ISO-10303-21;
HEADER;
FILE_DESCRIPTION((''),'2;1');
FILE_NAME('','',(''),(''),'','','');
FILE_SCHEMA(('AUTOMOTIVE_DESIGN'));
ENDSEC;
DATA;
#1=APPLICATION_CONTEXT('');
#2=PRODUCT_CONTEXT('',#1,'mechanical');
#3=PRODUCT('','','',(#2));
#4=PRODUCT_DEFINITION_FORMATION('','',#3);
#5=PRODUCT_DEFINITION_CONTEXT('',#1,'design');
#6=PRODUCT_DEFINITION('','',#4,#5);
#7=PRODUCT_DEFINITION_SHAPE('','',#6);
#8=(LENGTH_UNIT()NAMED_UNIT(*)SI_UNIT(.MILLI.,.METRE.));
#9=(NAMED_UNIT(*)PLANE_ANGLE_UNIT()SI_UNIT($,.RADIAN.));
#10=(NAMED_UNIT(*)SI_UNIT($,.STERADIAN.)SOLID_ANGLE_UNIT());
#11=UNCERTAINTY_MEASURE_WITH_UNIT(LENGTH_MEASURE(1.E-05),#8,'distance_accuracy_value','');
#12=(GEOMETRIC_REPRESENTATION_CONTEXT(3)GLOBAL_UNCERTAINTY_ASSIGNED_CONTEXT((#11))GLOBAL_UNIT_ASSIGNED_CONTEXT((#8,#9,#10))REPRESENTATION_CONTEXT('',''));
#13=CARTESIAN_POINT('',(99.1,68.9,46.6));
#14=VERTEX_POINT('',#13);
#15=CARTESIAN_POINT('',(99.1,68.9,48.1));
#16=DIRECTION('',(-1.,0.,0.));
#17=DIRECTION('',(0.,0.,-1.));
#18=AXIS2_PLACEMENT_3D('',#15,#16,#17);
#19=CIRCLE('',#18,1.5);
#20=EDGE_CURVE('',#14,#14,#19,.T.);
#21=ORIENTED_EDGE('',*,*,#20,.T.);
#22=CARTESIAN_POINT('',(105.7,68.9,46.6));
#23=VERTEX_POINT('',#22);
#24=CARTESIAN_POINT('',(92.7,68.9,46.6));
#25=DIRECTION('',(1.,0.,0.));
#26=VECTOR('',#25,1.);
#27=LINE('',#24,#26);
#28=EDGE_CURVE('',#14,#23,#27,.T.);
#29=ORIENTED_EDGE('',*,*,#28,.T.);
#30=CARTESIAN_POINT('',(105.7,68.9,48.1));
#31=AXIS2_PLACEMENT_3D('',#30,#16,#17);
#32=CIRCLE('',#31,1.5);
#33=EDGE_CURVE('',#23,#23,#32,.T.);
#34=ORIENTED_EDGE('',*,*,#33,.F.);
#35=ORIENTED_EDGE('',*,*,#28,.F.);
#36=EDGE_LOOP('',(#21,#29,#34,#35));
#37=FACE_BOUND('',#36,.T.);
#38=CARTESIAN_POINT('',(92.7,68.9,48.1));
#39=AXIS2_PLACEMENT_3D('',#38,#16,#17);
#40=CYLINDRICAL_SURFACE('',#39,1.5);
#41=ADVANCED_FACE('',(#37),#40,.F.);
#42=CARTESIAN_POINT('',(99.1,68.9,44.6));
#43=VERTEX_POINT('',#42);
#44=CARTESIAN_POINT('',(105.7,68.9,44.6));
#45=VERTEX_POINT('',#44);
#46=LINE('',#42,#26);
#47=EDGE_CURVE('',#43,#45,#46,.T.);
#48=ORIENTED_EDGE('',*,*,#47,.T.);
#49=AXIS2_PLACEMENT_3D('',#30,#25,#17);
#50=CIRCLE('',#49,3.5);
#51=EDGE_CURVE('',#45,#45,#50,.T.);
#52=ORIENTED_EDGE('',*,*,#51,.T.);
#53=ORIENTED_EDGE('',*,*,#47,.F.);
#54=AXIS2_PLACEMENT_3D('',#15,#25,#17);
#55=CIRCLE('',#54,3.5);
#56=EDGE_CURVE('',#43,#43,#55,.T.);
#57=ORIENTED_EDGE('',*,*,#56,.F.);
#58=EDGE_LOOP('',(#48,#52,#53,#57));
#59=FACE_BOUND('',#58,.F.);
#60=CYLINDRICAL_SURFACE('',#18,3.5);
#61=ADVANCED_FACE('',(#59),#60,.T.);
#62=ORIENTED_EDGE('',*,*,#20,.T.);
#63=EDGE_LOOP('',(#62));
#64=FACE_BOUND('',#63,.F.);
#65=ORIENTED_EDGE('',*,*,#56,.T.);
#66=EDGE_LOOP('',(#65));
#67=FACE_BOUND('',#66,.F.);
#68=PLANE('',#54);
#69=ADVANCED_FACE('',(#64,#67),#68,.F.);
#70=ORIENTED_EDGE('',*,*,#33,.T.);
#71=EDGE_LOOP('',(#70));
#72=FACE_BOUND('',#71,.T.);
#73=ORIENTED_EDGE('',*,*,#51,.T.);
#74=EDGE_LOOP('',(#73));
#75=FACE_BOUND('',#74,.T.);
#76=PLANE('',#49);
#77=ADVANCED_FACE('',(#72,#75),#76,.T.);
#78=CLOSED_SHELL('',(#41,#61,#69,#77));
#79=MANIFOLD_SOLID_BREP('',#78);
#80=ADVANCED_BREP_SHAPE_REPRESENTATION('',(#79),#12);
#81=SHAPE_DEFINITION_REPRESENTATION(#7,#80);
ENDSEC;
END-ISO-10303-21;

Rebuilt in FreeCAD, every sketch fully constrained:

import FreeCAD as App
import Part
import Sketcher

V = App.Vector
Q = App.Units.Quantity

doc = App.newDocument("Part")
body = doc.addObject("PartDesign::Body", "Body")

sketch1 = doc.addObject("Sketcher::SketchObject", "Sketch")
body.addObject(sketch1)
sketch1.AttachmentSupport = (doc.YZ_Plane, [""])
sketch1.MapMode = "FlatFace"
sketch1.AttachmentOffset = App.Placement(V(0, 0, 92.7), App.Rotation())
sketch1.addGeometry(Part.Circle(V(68.9, 48.1, 0), V(0, 0, 1), 1.5), False)
sketch1.addConstraint([
    Sketcher.Constraint("Diameter", 0, Q("3 mm")),
    Sketcher.Constraint("DistanceX", -1, 1, 0, 3, Q("68.9 mm")),
    Sketcher.Constraint("DistanceY", -1, 1, 0, 3, Q("48.1 mm")),
])
pad1 = doc.addObject("PartDesign::Pad", "Pad")
body.addObject(pad1)
pad1.Profile = sketch1
pad1.Length = 55
body2 = doc.addObject("PartDesign::Body", "Body001")

sketch2 = doc.addObject("Sketcher::SketchObject", "Sketch001")
body2.addObject(sketch2)
sketch2.AttachmentSupport = (doc.getObject("YZ_Plane001"), [""])
sketch2.MapMode = "FlatFace"
sketch2.AttachmentOffset = App.Placement(V(0, 0, 99.1), App.Rotation())
sketch2.addGeometry(Part.Circle(V(68.9, 48.1, 0), V(0, 0, 1), 3.5), False)
sketch2.addConstraint([
    Sketcher.Constraint("Diameter", 0, Q("7 mm")),
    Sketcher.Constraint("DistanceX", -1, 1, 0, 3, Q("68.9 mm")),
    Sketcher.Constraint("DistanceY", -1, 1, 0, 3, Q("48.1 mm")),
])
pad2 = doc.addObject("PartDesign::Pad", "Pad001")
body2.addObject(pad2)
pad2.Profile = sketch2
pad2.Length = 6.6
doc.recompute()

boolean = doc.addObject("PartDesign::Boolean", "Boolean")
body2.addObject(boolean)
boolean.Type = "Cut"
boolean.addObjects([body])

doc.recompute()
